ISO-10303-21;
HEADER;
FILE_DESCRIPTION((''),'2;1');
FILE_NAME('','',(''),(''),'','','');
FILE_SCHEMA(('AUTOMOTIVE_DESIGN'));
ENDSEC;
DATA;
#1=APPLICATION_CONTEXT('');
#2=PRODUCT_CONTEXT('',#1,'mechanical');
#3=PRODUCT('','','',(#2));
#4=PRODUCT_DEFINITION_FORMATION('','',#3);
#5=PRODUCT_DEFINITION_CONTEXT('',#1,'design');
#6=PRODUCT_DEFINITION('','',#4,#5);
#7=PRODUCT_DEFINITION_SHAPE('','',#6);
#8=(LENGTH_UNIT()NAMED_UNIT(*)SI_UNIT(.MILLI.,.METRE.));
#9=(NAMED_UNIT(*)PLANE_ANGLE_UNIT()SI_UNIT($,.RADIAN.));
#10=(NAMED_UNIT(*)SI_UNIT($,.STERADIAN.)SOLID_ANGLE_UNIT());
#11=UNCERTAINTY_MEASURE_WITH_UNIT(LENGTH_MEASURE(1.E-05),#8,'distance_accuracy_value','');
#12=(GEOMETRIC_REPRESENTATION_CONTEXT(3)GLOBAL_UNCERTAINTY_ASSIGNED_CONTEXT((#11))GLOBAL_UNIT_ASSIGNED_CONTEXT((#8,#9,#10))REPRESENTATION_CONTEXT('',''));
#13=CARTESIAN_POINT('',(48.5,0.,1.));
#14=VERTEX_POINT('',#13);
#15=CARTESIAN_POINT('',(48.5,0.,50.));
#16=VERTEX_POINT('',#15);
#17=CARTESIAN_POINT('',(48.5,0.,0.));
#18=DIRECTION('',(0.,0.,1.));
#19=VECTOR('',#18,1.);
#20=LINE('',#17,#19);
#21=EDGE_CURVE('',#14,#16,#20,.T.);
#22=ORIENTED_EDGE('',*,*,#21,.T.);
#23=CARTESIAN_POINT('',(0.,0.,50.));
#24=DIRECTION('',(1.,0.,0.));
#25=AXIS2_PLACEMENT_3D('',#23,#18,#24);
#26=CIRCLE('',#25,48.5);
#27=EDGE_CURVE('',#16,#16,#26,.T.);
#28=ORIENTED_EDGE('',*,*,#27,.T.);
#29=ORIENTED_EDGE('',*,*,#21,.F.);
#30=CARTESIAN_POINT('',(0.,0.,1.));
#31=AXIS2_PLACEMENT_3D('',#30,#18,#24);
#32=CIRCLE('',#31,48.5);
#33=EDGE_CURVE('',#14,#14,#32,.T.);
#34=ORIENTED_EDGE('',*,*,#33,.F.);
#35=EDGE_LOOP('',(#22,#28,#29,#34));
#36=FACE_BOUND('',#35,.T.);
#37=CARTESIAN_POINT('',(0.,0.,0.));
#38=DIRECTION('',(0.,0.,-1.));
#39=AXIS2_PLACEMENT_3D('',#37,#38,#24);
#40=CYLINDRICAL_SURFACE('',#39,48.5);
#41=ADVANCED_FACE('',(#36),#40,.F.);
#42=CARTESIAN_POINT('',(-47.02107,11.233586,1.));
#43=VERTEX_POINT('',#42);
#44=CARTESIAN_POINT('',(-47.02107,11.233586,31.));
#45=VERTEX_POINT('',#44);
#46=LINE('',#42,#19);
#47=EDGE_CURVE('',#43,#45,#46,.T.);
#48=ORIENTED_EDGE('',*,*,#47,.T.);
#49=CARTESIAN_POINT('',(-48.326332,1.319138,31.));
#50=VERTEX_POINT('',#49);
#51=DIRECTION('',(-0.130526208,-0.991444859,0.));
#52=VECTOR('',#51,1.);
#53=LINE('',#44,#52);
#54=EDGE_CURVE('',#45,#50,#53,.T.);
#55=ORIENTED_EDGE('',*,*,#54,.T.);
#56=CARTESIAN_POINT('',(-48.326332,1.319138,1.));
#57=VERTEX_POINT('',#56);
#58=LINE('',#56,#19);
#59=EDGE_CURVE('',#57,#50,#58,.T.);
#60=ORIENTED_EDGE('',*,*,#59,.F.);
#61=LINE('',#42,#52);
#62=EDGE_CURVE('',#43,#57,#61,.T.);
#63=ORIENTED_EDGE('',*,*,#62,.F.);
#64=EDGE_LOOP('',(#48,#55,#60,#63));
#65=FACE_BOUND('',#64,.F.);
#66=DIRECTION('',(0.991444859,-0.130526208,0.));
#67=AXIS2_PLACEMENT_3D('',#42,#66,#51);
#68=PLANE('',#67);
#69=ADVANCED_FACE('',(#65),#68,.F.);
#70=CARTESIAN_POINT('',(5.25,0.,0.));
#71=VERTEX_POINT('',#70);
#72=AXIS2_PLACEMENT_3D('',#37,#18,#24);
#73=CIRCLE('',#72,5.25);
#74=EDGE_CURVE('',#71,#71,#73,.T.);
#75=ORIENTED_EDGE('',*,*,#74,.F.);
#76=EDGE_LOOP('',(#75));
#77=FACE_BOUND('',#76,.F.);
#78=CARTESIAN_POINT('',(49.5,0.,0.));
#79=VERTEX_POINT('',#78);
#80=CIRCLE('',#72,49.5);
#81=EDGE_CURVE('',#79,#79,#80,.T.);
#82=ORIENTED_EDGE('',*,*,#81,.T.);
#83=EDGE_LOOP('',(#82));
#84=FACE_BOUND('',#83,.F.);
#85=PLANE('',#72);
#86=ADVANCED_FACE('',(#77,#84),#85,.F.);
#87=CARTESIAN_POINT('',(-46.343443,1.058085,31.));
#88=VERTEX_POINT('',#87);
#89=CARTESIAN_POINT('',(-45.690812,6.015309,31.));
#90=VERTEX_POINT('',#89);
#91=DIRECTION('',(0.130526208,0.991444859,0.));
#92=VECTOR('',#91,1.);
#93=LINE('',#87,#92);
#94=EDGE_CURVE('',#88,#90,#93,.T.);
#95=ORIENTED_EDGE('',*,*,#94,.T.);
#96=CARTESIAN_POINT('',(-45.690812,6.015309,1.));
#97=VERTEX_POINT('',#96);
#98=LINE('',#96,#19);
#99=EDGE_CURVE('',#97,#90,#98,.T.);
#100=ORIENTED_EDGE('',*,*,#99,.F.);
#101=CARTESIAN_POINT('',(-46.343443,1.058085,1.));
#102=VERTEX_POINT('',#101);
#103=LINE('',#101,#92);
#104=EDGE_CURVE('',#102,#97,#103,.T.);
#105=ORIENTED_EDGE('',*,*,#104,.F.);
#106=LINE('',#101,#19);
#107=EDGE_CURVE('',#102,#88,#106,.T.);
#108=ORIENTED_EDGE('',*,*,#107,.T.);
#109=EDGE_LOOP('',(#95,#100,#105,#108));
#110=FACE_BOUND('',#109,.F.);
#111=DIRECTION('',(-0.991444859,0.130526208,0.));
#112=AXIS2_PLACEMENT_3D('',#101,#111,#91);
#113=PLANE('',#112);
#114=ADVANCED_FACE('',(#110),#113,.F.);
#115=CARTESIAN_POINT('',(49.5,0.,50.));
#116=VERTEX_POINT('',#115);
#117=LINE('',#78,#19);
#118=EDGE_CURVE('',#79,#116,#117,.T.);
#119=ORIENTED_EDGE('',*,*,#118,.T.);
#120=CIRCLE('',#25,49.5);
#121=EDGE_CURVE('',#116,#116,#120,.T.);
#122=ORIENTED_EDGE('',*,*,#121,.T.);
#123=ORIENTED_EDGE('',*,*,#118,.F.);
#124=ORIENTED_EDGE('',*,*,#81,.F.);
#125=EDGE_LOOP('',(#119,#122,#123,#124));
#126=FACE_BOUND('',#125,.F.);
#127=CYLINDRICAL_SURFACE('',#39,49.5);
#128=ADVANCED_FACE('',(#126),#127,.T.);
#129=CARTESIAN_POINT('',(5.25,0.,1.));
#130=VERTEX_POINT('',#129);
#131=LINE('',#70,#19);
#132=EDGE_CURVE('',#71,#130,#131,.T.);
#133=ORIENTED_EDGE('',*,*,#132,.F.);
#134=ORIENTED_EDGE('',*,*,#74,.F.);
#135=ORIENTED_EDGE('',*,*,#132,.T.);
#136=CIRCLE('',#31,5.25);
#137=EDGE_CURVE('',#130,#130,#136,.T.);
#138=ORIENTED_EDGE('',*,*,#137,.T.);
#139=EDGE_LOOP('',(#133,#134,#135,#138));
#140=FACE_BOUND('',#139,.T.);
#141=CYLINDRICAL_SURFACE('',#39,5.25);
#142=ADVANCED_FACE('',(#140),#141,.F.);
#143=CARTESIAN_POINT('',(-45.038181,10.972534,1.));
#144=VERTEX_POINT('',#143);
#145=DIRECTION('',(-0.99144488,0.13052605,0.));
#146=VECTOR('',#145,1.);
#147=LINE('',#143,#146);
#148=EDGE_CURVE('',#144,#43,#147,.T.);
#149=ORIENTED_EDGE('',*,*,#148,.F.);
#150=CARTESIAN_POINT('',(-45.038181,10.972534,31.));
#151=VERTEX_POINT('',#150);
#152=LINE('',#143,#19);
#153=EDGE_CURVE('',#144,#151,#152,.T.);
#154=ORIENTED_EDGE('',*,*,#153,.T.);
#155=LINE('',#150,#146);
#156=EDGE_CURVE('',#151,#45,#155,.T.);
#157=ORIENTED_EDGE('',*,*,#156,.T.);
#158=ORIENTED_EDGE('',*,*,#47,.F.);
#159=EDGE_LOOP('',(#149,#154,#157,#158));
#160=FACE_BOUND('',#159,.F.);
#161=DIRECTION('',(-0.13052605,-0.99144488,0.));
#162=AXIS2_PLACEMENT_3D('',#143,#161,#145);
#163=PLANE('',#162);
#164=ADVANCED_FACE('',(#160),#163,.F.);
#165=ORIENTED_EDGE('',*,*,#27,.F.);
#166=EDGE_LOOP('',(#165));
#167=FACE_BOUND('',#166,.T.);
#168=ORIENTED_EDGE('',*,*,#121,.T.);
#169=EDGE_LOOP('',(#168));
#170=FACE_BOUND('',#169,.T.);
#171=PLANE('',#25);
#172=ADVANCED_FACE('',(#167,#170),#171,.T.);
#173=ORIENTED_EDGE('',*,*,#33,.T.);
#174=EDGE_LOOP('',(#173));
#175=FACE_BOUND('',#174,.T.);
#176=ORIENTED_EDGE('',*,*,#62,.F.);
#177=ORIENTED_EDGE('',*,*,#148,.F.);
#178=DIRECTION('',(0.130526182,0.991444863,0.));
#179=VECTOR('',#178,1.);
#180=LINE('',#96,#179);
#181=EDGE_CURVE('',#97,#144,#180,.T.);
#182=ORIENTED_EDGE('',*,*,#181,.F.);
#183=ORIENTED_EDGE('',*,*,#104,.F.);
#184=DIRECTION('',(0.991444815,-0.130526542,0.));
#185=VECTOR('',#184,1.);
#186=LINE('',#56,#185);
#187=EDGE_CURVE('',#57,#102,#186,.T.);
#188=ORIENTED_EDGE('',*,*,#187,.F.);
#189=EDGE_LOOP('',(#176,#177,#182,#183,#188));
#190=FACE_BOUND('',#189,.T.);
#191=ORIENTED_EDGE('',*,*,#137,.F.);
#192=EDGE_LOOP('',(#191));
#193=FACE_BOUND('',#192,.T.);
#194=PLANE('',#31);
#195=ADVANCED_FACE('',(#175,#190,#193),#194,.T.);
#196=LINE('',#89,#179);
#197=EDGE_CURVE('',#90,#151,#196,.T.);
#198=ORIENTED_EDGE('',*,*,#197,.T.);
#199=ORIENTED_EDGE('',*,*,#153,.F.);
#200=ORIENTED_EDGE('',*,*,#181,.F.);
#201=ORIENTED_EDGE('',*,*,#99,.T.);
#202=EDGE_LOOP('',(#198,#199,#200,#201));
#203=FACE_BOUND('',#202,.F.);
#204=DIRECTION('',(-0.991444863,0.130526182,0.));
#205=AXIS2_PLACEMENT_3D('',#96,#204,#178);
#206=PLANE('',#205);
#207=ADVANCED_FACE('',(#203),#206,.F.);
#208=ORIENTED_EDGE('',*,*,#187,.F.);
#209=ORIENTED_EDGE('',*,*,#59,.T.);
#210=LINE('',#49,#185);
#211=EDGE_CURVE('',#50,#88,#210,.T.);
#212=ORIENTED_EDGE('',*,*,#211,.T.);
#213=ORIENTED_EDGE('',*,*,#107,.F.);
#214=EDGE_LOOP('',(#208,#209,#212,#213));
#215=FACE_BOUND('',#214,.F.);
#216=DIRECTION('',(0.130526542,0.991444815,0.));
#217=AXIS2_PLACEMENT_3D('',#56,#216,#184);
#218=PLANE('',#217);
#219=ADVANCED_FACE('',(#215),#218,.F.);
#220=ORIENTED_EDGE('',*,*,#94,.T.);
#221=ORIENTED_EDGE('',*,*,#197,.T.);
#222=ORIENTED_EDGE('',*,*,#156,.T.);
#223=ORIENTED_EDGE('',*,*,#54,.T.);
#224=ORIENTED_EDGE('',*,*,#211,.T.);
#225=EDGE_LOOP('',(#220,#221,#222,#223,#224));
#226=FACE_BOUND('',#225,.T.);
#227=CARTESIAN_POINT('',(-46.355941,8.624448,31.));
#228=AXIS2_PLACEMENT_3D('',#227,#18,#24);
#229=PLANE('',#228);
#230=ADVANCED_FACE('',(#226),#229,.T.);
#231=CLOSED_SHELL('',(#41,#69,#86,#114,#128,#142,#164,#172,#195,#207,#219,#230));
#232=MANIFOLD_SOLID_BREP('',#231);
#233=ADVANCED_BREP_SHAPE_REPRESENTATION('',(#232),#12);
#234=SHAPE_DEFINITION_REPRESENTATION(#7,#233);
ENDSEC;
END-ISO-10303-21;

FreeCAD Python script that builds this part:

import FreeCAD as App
import Part
import Sketcher
from FreeCAD import Vector
Q = App.Units.Quantity

doc = App.newDocument("Part")
body = doc.addObject("PartDesign::Body", "Body")

sketch1 = doc.addObject("Sketcher::SketchObject", "Sketch")
body.addObject(sketch1)
sketch1.AttachmentSupport = (doc.XY_Plane, [""])
sketch1.MapMode = "FlatFace"
sketch1.addGeometry([
    Part.Circle(Vector(0, 0, 0), Vector(0, 0, 1), 50),
    Part.Circle(Vector(0, 0, 0), Vector(0, 0, 1), 48),
], False)
sketch1.addConstraint([
    Sketcher.Constraint("Coincident", 0, 3, -1, 1),
    Sketcher.Constraint("Coincident", 1, 3, -1, 1),
    Sketcher.Constraint("Diameter", 0, Q("99 mm")),
    Sketcher.Constraint("Diameter", 1, Q("97 mm")),
])
pad1 = doc.addObject("PartDesign::Pad", "Pad")
body.addObject(pad1)
pad1.Profile = sketch1
pad1.Length = 50

sketch2 = doc.addObject("Sketcher::SketchObject", "Sketch001")
body.addObject(sketch2)
sketch2.AttachmentSupport = (doc.XY_Plane, [""])
sketch2.MapMode = "FlatFace"
sketch2.addGeometry([
    Part.Circle(Vector(0, 0, 0), Vector(0, 0, 1), 48),
    Part.Circle(Vector(0, 0, 0), Vector(0, 0, 1), 5),
], False)
sketch2.addConstraint([
    Sketcher.Constraint("Coincident", 0, 3, -1, 1),
    Sketcher.Constraint("Coincident", 1, 3, -1, 1),
    Sketcher.Constraint("Diameter", 0, Q("97 mm")),
    Sketcher.Constraint("Diameter", 1, Q("10.5 mm")),
])
pad2 = doc.addObject("PartDesign::Pad", "Pad001")
body.addObject(pad2)
pad2.Profile = sketch2
pad2.Length = 1

sketch3 = doc.addObject("Sketcher::SketchObject", "Sketch002")
body.addObject(sketch3)
sketch3.AttachmentSupport = (doc.XY_Plane, [""])
sketch3.MapMode = "FlatFace"
sketch3.AttachmentOffset = App.Placement(Vector(0, 0, 1), App.Rotation())
sketch3.addGeometry([
    Part.LineSegment(Vector(-47, 11.2, 0), Vector(-48.3, 1.3, 0)),
    Part.LineSegment(Vector(-48.3, 1.3, 0), Vector(-46.3, 1.1, 0)),
    Part.LineSegment(Vector(-46.3, 1.1, 0), Vector(-45.7, 6, 0)),
    Part.LineSegment(Vector(-45.7, 6, 0), Vector(-45, 11, 0)),
    Part.LineSegment(Vector(-45, 11, 0), Vector(-47, 11.2, 0)),
], False)
sketch3.addConstraint([
    Sketcher.Constraint("Coincident", 0, 2, 1, 1),
    Sketcher.Constraint("Coincident", 1, 2, 2, 1),
    Sketcher.Constraint("Coincident", 2, 2, 3, 1),
    Sketcher.Constraint("Coincident", 3, 2, 4, 1),
    Sketcher.Constraint("Coincident", 4, 2, 0, 1),
    Sketcher.Constraint("Perpendicular", 0, 1),
    Sketcher.Constraint("Perpendicular", 1, 2),
    Sketcher.Constraint("Parallel", 2, 3),
    Sketcher.Constraint("Perpendicular", 3, 4),
    Sketcher.Constraint("Equal", 2, 3),
    Sketcher.Constraint("Distance", 0, Q("9.999999 mm")),
    Sketcher.Constraint("Distance", 1, Q("1.999999 mm")),
    Sketcher.Constraint("Angle", 0, Q("-97.500001 deg")),
    Sketcher.Constraint("DistanceY", -1, 1, 2, 2, Q("6.015309 mm")),
    Sketcher.Constraint("DistanceX", 3, 2, -1, 1, Q("45.038181 mm")),
])
pad3 = doc.addObject("PartDesign::Pad", "Pad002")
body.addObject(pad3)
pad3.Profile = sketch3
pad3.Length = 30

doc.recompute()
